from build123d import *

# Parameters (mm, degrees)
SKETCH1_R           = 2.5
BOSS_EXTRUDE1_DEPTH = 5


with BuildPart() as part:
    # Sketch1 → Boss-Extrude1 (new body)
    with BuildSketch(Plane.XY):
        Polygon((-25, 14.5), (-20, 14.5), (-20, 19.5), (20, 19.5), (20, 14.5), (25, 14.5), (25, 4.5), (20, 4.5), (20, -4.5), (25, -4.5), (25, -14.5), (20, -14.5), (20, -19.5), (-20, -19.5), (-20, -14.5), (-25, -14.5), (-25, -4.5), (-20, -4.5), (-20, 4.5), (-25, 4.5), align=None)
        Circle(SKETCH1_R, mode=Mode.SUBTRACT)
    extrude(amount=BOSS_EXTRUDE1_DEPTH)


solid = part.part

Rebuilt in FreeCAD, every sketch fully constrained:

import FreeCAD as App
import Part
import Sketcher
from FreeCAD import Vector
Q = App.Units.Quantity


def add_polygon(sketch, points):
    """Adds a closed chain of lines whose ends are joined by coincident constraints."""
    first, n = sketch.GeometryCount, len(points)
    for a, b in zip(points, points[1:] + points[:1]):
        sketch.addGeometry(Part.LineSegment(App.Vector(*a, 0), App.Vector(*b, 0)), False)
    for i in range(n):
        sketch.addConstraint(Sketcher.Constraint("Coincident", first + i, 2, first + (i + 1) % n, 1))

doc = App.newDocument("Part")
body = doc.addObject("PartDesign::Body", "Body")

# Sketch on XY plane
sketch1 = body.newObject("Sketcher::SketchObject", "Sketch")
sketch1.AttachmentSupport = (doc.getObject("XY_Plane"), [""])
sketch1.MapMode = "FlatFace"
add_polygon(sketch1, [(-20, 14.5), (-25, 14.5), (-25, 4.5), (-20, 4.5), (-20, -4.5), (-25, -4.5), (-25, -14.5), (-20, -14.5), (-20, -19.5), (20, -19.5), (20, -14.5), (25, -14.5), (25, -4.5), (20, -4.5), (20, 4.5), (25, 4.5), (25, 14.5), (20, 14.5), (20, 19.5), (-20, 19.5)])  # lines 0-19
sketch1.addGeometry(Part.Circle(Vector(0, 0, 0), Vector(0, 0, 1), 2.5), False)  # 20
sketch1.addConstraint([
    Sketcher.Constraint("Horizontal", 0),
    Sketcher.Constraint("Vertical", 1),
    Sketcher.Constraint("Horizontal", 2),
    Sketcher.Constraint("Vertical", 3),
    Sketcher.Constraint("Horizontal", 4),
    Sketcher.Constraint("Vertical", 5),
    Sketcher.Constraint("Horizontal", 6),
    Sketcher.Constraint("Vertical", 7),
    Sketcher.Constraint("Horizontal", 8),
    Sketcher.Constraint("Vertical", 9),
    Sketcher.Constraint("Horizontal", 10),
    Sketcher.Constraint("Vertical", 11),
    Sketcher.Constraint("Horizontal", 12),
    Sketcher.Constraint("Vertical", 13),
    Sketcher.Constraint("Horizontal", 14),
    Sketcher.Constraint("Vertical", 15),
    Sketcher.Constraint("Horizontal", 16),
    Sketcher.Constraint("Vertical", 17),
    Sketcher.Constraint("Horizontal", 18),
    Sketcher.Constraint("Vertical", 19),
    Sketcher.Constraint("Coincident", 20, 3, -1, 1),
    Sketcher.Constraint("Symmetric", 0, 2, 10, 2, -1, 1),
    Sketcher.Constraint("Symmetric", 2, 2, 12, 2, -1, 1),
    Sketcher.Constraint("Symmetric", 4, 2, 14, 2, -1, 1),
    Sketcher.Constraint("Symmetric", 6, 2, 16, 2, -1, 1),
    Sketcher.Constraint("Symmetric", 8, 2, 18, 2, -1, 1),
    Sketcher.Constraint("Symmetric", 6, 2, 9, 2, -2),
    Sketcher.Constraint("Symmetric", 4, 2, 11, 2, -2),
    Sketcher.Constraint("Vertical", 3, 2, 6, 2),
    Sketcher.Constraint("Equal", 16, 7),
    Sketcher.Constraint("Diameter", 20, Q("5 mm")),
    Sketcher.Constraint("DistanceX", 0, 2, 0, 1, Q("5 mm")),
    Sketcher.Constraint("DistanceX", 8, 1, 8, 2, Q("40 mm")),
    Sketcher.Constraint("DistanceY", 1, 2, 1, 1, Q("10 mm")),
    Sketcher.Constraint("DistanceY", 3, 2, 3, 1, Q("9 mm")),
])
pad1 = body.newObject("PartDesign::Pad", "Pad")
pad1.Profile = sketch1
pad1.Length = 5

doc.recompute()
